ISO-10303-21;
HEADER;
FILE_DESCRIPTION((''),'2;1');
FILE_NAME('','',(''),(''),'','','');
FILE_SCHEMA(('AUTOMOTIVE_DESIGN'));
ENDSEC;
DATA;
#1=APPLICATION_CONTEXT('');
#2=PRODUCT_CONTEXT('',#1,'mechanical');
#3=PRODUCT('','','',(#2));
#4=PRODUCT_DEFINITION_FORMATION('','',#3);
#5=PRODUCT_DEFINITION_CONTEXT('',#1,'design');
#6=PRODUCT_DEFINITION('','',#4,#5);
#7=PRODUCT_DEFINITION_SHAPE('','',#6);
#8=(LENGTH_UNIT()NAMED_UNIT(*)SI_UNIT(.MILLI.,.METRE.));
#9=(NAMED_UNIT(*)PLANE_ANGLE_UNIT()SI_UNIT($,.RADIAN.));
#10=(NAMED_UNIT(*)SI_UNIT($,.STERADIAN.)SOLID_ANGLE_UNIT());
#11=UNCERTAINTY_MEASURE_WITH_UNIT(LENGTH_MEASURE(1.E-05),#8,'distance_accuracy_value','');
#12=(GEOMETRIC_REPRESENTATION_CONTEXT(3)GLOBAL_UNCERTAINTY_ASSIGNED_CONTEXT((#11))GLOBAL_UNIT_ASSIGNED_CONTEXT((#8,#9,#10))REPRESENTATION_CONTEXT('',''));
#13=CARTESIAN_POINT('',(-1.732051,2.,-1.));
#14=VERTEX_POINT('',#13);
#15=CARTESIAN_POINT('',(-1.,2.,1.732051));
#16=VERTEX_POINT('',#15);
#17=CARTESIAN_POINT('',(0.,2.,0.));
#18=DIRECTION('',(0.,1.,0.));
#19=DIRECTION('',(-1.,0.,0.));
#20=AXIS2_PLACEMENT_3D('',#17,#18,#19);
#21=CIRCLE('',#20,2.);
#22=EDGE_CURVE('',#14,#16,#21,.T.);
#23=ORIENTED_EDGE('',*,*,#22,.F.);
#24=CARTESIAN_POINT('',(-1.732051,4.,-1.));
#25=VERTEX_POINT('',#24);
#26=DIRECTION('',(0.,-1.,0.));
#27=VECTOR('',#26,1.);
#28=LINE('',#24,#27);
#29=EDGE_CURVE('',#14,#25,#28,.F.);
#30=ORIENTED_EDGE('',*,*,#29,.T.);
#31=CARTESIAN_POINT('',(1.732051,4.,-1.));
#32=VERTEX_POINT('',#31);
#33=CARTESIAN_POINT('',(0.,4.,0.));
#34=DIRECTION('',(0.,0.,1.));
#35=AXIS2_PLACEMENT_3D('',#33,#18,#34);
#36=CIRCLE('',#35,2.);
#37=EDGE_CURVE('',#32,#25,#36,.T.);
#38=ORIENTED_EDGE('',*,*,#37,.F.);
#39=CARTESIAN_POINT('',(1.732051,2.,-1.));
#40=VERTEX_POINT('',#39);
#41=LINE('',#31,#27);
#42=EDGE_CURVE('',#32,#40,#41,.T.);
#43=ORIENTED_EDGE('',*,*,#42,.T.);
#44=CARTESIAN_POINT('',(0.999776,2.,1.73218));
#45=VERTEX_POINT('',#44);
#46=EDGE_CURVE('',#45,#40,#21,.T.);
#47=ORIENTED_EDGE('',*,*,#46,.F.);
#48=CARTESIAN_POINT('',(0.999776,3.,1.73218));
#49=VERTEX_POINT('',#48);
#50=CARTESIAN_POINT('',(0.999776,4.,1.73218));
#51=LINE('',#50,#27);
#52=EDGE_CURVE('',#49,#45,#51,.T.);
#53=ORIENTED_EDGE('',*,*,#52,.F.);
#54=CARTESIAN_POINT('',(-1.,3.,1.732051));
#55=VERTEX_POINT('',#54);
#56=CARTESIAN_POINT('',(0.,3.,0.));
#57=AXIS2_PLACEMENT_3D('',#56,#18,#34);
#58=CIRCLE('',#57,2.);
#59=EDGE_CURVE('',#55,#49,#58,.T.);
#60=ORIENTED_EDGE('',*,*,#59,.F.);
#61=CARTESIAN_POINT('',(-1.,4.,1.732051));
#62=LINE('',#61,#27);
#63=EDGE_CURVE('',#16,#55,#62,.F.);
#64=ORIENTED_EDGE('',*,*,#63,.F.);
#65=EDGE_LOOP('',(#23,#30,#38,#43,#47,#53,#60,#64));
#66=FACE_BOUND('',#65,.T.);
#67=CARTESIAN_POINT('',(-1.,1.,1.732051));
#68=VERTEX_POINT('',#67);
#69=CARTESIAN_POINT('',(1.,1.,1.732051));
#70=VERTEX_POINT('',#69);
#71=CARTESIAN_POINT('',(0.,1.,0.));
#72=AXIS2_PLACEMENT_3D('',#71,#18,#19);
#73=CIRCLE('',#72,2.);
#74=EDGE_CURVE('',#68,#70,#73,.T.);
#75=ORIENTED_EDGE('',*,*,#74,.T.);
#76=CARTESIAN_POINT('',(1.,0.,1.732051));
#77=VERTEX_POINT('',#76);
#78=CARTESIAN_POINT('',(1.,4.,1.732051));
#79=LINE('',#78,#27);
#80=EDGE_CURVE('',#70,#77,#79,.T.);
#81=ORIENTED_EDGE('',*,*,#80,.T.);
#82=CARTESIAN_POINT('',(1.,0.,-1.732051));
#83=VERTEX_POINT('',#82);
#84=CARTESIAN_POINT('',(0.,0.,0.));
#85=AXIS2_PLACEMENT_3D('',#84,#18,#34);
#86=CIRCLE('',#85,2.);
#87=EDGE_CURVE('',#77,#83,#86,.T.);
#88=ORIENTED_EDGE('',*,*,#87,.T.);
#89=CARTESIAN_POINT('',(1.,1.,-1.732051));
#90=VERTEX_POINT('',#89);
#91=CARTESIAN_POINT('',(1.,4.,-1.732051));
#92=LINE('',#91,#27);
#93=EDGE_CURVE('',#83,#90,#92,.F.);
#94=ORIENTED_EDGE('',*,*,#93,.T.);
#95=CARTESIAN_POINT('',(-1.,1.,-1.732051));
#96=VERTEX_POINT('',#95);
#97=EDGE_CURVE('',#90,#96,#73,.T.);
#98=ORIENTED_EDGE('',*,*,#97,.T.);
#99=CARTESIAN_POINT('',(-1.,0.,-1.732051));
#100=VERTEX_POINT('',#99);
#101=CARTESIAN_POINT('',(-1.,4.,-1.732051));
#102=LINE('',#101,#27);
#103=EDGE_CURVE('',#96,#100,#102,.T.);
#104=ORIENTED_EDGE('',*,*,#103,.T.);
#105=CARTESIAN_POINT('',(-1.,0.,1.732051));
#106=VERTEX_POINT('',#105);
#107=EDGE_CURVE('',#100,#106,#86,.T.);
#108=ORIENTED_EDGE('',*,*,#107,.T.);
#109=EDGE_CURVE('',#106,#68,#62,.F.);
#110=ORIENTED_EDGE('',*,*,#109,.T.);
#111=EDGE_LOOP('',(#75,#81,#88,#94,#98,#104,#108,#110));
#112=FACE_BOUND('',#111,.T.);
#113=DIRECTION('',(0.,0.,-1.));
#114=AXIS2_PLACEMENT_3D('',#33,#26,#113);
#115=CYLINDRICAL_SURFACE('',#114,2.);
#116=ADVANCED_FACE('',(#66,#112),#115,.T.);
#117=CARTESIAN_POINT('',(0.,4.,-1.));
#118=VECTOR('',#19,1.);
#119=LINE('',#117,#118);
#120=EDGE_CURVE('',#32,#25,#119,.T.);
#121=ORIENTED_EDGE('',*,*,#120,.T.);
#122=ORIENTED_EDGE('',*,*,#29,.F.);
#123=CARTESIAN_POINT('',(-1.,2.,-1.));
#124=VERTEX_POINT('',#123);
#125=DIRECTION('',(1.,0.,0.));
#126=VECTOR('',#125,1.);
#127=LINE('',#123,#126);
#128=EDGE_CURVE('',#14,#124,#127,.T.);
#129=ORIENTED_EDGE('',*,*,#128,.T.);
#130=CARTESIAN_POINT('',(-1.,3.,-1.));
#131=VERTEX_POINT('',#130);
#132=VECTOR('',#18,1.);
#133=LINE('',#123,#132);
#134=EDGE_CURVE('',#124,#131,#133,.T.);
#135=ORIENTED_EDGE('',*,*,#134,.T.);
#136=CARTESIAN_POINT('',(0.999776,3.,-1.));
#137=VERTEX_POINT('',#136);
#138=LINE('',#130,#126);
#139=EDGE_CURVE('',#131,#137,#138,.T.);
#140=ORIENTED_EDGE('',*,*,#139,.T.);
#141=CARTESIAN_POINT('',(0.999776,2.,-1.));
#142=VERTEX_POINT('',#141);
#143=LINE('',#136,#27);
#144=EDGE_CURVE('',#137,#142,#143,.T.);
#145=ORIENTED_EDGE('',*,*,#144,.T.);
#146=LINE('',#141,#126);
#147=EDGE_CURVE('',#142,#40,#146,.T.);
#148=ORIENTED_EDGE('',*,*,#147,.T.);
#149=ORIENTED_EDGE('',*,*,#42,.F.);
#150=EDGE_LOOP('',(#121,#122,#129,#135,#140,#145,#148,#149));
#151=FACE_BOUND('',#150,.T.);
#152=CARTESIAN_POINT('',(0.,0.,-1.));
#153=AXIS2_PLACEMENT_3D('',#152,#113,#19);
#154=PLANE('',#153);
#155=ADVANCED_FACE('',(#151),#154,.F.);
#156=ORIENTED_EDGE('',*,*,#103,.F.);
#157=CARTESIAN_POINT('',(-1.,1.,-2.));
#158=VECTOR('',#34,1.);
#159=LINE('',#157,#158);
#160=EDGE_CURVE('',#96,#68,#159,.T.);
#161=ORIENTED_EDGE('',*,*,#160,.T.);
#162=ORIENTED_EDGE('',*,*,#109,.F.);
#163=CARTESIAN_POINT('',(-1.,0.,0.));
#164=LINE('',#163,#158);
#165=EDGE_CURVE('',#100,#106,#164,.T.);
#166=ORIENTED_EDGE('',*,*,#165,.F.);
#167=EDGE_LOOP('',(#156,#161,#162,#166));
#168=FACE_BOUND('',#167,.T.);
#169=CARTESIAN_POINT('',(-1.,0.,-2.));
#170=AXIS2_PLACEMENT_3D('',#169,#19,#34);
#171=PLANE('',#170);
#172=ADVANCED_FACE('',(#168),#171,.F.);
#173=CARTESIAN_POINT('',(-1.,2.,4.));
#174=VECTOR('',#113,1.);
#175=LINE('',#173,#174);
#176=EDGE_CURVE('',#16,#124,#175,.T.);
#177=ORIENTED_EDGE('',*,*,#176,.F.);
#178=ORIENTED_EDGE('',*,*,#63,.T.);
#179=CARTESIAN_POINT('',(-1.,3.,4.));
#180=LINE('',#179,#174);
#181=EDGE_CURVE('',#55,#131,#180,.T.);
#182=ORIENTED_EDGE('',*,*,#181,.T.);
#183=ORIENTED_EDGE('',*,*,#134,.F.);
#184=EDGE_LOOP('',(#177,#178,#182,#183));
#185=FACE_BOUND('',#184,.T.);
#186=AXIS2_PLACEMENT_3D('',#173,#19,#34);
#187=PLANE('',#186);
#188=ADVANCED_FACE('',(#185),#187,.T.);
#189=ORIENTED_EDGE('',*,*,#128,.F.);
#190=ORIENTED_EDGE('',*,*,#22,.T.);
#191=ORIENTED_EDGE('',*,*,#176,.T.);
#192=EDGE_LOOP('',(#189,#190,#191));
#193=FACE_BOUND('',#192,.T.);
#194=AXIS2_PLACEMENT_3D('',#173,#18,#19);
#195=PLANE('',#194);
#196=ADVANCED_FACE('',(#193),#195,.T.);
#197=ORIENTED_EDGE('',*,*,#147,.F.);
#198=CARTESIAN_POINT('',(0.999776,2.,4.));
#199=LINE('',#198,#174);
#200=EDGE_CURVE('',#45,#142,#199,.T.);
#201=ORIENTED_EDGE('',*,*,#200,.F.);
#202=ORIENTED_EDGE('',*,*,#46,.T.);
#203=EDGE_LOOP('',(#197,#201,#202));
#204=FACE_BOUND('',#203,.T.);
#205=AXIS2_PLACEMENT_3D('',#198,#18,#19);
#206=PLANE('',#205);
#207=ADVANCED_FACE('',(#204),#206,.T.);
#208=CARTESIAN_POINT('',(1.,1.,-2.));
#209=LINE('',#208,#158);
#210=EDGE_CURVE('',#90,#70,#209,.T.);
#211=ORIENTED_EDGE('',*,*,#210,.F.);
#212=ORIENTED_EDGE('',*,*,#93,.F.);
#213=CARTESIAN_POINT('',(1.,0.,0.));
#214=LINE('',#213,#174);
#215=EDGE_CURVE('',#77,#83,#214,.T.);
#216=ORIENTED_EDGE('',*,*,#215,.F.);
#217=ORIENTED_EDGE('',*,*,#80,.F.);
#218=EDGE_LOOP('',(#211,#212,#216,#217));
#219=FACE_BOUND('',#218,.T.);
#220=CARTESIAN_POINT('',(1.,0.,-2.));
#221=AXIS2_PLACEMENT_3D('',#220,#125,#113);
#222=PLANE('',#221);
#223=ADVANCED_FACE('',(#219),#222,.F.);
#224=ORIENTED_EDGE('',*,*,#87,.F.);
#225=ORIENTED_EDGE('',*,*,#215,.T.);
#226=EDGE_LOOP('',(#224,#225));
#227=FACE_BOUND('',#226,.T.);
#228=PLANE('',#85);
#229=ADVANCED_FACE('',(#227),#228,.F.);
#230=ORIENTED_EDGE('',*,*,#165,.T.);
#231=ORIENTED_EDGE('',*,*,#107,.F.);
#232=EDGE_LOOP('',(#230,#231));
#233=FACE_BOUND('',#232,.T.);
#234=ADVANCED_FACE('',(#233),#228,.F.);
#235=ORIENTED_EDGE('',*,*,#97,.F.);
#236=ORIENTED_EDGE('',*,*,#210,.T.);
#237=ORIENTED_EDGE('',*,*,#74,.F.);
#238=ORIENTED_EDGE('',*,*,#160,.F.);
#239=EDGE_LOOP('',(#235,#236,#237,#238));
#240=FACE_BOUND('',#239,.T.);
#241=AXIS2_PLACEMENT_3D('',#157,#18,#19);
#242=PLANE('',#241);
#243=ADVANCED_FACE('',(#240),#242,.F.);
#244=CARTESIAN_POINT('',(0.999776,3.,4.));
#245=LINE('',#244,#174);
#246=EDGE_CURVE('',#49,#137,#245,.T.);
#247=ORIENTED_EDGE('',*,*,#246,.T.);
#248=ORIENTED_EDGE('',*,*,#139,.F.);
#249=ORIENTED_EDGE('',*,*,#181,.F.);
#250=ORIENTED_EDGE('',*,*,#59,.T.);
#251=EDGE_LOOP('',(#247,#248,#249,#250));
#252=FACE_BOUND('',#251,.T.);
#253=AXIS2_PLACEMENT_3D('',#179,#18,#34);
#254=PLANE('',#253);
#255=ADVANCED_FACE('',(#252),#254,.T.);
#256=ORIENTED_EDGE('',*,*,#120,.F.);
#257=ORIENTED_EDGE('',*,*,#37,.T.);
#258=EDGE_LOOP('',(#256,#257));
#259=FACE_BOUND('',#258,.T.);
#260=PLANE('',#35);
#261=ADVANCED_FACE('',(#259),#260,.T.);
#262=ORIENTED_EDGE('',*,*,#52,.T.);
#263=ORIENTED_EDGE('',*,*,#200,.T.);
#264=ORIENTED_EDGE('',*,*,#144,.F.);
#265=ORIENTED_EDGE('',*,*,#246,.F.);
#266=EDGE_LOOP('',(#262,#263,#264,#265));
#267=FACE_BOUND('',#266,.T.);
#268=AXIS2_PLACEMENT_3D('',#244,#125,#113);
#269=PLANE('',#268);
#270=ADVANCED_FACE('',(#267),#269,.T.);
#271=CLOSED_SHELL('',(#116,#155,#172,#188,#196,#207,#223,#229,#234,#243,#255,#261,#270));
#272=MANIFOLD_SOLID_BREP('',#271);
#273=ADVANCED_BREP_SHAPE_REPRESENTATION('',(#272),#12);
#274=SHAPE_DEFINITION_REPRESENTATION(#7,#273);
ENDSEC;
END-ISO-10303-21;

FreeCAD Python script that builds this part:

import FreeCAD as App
import Part
import Sketcher

V = App.Vector
Q = App.Units.Quantity

doc = App.newDocument("Part")
body = doc.addObject("PartDesign::Body", "Body")

# Sketch on XZ plane
sketch1 = doc.addObject("Sketcher::SketchObject", "Sketch")
body.addObject(sketch1)
sketch1.AttachmentSupport = (doc.XZ_Plane, [""])
sketch1.MapMode = "FlatFace"
sketch1.addGeometry(Part.Circle(V(0, 0, 0), V(0, 0, 1), 2), False)
sketch1.addConstraint(Sketcher.Constraint("Coincident", 0, 3, -1, 1))
sketch1.addConstraint(Sketcher.Constraint("Diameter", 0, Q("4 mm")))
pad1 = doc.addObject("PartDesign::Pad", "Pad")
body.addObject(pad1)
pad1.Profile = sketch1
pad1.Length = 4
pad1.Reversed = True

# Sketch on XY plane
sketch2 = doc.addObject("Sketcher::SketchObject", "Sketch001")
body.addObject(sketch2)
sketch2.AttachmentSupport = (doc.XY_Plane, [""])
sketch2.MapMode = "FlatFace"
sketch2.addGeometry(Part.LineSegment(V(-1, 1, 0), V(-1, 0, 0)), False)
sketch2.addGeometry(Part.LineSegment(V(-1, 0, 0), V(1, 0, 0)), False)
sketch2.addGeometry(Part.LineSegment(V(1, 0, 0), V(1, 1, 0)), False)
sketch2.addGeometry(Part.LineSegment(V(1, 1, 0), V(-1, 1, 0)), False)
sketch2.addConstraint(Sketcher.Constraint("Coincident", 0, 2, 1, 1))
sketch2.addConstraint(Sketcher.Constraint("Coincident", 1, 2, 2, 1))
sketch2.addConstraint(Sketcher.Constraint("Coincident", 2, 2, 3, 1))
sketch2.addConstraint(Sketcher.Constraint("Coincident", 3, 2, 0, 1))
sketch2.addConstraint(Sketcher.Constraint("Vertical", 0))
sketch2.addConstraint(Sketcher.Constraint("Horizontal", 1))
sketch2.addConstraint(Sketcher.Constraint("Vertical", 2))
sketch2.addConstraint(Sketcher.Constraint("Horizontal", 3))
sketch2.addConstraint(Sketcher.Constraint("Symmetric", 0, 2, 1, 2, -1, 1))
sketch2.addConstraint(Sketcher.Constraint("DistanceX", 1, 1, 1, 2, Q("2 mm")))
sketch2.addConstraint(Sketcher.Constraint("DistanceY", 0, 2, 0, 1, Q("1 mm")))
pocket1 = doc.addObject("PartDesign::Pocket", "Pocket")
body.addObject(pocket1)
pocket1.Profile = sketch2
pocket1.Length = 4
pocket1.Midplane = True

# Sketch on XY plane
sketch3 = doc.addObject("Sketcher::SketchObject", "Sketch002")
body.addObject(sketch3)
sketch3.AttachmentSupport = (doc.XY_Plane, [""])
sketch3.MapMode = "FlatFace"
sketch3.addGeometry(Part.LineSegment(V(2, 4, 0), V(-2, 4, 0)), False)
sketch3.addGeometry(Part.LineSegment(V(-2, 4, 0), V(-2, 2, 0)), False)
sketch3.addGeometry(Part.LineSegment(V(-2, 2, 0), V(-1, 2, 0)), False)
sketch3.addGeometry(Part.LineSegment(V(-1, 2, 0), V(-1, 3, 0)), False)
sketch3.addGeometry(Part.LineSegment(V(-1, 3, 0), V(1, 3, 0)), False)
sketch3.addGeometry(Part.LineSegment(V(1, 3, 0), V(1, 2, 0)), False)
sketch3.addGeometry(Part.LineSegment(V(1, 2, 0), V(2, 2, 0)), False)
sketch3.addGeometry(Part.LineSegment(V(2, 2, 0), V(2, 4, 0)), False)
sketch3.addConstraint(Sketcher.Constraint("Coincident", 0, 2, 1, 1))
sketch3.addConstraint(Sketcher.Constraint("Coincident", 1, 2, 2, 1))
sketch3.addConstraint(Sketcher.Constraint("Coincident", 2, 2, 3, 1))
sketch3.addConstraint(Sketcher.Constraint("Coincident", 3, 2, 4, 1))
sketch3.addConstraint(Sketcher.Constraint("Coincident", 4, 2, 5, 1))
sketch3.addConstraint(Sketcher.Constraint("Coincident", 5, 2, 6, 1))
sketch3.addConstraint(Sketcher.Constraint("Coincident", 6, 2, 7, 1))
sketch3.addConstraint(Sketcher.Constraint("Coincident", 7, 2, 0, 1))
sketch3.addConstraint(Sketcher.Constraint("Horizontal", 0))
sketch3.addConstraint(Sketcher.Constraint("Vertical", 1))
sketch3.addConstraint(Sketcher.Constraint("Horizontal", 2))
sketch3.addConstraint(Sketcher.Constraint("Vertical", 3))
sketch3.addConstraint(Sketcher.Constraint("Horizontal", 4))
sketch3.addConstraint(Sketcher.Constraint("Vertical", 5))
sketch3.addConstraint(Sketcher.Constraint("Horizontal", 6))
sketch3.addConstraint(Sketcher.Constraint("Vertical", 7))
sketch3.addConstraint(Sketcher.Constraint("Symmetric", 1, 2, 6, 2, -2))
sketch3.addConstraint(Sketcher.Constraint("Equal", 2, 3))
sketch3.addConstraint(Sketcher.Constraint("DistanceX", 0, 2, 0, 1, Q("4 mm")))
sketch3.addConstraint(Sketcher.Constraint("DistanceX", 2, 1, 2, 2, Q("1 mm")))
sketch3.addConstraint(Sketcher.Constraint("DistanceY", 1, 2, 1, 1, Q("2 mm")))
sketch3.addConstraint(Sketcher.Constraint("DistanceY", -1, 1, 0, 2, Q("4 mm")))
sketch3.addConstraint(Sketcher.Constraint("DistanceX", 4, 1, 4, 2, Q("1.999776 mm")))
pocket2 = doc.addObject("PartDesign::Pocket", "Pocket001")
body.addObject(pocket2)
pocket2.Profile = sketch3
pocket2.Type = "TwoLengths"
pocket2.Length = 4
pocket2.Length2 = 1
pocket2.Reversed = True

doc.recompute()
